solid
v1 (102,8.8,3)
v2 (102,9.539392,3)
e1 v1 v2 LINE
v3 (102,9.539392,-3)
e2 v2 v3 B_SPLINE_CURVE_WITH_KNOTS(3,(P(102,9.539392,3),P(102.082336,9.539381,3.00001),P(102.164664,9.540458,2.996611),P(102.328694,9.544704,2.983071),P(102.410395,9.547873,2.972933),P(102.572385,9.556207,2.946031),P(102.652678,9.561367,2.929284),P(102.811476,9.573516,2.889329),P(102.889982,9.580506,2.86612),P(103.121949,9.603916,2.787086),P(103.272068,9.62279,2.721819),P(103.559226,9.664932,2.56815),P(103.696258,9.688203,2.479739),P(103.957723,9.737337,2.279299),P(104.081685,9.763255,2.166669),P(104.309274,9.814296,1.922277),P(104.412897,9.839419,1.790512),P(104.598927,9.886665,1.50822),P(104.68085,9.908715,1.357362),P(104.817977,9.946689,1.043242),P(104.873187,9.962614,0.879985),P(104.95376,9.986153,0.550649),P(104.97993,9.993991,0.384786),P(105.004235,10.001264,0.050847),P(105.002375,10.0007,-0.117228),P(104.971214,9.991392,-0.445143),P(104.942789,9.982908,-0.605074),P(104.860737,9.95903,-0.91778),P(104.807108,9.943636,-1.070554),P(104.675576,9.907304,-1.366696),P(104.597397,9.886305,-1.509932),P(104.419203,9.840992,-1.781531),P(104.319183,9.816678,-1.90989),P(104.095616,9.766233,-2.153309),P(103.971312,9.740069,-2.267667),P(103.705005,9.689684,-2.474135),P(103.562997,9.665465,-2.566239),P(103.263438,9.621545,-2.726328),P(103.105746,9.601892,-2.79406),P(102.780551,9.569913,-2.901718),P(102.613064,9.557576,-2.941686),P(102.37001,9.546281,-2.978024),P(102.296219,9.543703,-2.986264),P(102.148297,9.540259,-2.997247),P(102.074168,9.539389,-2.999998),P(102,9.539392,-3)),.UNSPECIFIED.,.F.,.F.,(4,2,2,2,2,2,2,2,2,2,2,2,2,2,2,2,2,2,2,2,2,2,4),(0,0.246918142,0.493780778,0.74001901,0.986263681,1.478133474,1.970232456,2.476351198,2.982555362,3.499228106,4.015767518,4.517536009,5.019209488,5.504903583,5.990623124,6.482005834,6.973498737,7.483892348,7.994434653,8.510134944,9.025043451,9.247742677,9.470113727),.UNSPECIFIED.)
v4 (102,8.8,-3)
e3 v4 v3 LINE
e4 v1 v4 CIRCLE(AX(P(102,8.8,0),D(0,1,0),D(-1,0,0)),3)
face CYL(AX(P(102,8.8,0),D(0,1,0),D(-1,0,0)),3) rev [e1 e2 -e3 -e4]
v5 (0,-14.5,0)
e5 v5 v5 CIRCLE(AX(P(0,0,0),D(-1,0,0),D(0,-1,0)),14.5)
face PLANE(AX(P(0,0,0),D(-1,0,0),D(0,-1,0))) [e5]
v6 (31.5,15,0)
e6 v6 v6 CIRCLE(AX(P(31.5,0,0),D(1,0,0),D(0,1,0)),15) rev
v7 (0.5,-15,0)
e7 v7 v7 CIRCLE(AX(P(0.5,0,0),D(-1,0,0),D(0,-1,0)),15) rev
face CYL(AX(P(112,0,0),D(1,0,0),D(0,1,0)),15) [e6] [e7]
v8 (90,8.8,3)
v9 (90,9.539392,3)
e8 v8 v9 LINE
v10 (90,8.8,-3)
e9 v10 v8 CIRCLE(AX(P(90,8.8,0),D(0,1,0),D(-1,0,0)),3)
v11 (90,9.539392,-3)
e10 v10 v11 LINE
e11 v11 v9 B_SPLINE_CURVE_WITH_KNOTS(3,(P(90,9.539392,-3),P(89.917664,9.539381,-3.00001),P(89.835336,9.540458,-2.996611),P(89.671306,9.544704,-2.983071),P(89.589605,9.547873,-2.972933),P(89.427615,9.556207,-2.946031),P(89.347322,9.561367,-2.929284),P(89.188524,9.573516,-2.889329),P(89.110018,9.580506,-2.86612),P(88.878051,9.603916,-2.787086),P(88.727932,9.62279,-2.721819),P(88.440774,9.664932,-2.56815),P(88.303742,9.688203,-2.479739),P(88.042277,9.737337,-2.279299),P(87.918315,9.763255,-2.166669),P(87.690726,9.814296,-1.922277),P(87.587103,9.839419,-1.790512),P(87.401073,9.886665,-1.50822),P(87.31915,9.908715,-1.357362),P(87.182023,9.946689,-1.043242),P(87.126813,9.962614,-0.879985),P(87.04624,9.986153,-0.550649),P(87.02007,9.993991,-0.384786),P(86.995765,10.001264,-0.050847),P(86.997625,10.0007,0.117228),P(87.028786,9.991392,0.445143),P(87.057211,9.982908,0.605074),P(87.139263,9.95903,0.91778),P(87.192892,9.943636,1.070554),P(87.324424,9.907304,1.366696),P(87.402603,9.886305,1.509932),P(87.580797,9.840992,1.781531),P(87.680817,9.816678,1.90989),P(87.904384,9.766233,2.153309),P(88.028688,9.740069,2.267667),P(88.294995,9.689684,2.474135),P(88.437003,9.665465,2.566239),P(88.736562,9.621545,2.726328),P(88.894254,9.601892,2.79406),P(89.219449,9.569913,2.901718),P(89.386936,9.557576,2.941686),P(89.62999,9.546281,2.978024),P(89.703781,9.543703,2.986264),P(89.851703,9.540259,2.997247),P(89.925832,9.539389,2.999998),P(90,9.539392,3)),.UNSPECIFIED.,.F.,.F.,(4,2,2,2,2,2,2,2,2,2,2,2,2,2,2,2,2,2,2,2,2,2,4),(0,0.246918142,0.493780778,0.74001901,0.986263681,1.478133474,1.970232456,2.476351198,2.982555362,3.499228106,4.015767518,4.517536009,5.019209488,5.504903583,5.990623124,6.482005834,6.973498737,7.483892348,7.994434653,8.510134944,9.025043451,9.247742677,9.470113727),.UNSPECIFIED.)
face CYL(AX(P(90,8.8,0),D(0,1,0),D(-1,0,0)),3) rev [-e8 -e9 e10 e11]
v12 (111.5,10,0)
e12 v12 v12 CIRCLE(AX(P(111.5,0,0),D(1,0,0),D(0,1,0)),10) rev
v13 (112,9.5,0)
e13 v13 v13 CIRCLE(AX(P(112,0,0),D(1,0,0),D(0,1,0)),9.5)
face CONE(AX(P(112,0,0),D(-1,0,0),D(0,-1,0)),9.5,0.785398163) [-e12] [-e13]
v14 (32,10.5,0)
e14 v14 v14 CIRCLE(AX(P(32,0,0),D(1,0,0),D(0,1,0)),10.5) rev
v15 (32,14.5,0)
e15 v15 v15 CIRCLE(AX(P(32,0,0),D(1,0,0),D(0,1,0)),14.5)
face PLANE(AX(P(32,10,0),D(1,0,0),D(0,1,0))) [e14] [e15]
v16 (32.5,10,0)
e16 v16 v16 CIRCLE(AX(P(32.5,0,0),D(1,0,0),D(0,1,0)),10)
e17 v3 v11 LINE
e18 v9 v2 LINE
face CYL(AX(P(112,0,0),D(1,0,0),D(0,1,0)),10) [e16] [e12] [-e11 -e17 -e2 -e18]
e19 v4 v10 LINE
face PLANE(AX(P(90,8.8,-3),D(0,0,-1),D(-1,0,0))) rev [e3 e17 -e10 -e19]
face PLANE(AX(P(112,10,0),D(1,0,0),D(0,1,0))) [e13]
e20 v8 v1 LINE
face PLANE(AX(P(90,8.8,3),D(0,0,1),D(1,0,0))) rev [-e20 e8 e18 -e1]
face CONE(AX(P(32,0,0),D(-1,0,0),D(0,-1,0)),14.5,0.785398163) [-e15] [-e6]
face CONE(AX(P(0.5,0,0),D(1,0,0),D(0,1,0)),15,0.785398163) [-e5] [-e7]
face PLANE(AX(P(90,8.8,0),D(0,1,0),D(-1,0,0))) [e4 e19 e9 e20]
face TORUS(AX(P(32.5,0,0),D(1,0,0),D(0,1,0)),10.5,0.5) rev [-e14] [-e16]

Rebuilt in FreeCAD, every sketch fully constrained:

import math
import FreeCAD as App
import Part
import Sketcher
from FreeCAD import Vector


def edges_at(feature, points):
    """Names of the edges that pass closest to the given points."""
    edges = feature.Shape.Edges
    near = lambda p: min(range(len(edges)), key=lambda i: edges[i].distToShape(Part.Vertex(*p))[0])
    return sorted({f"Edge{near(p) + 1}" for p in points})

doc = App.newDocument("Part")
body = doc.addObject("PartDesign::Body", "Body")

# Sketch on XY plane
sketch1 = body.newObject("Sketcher::SketchObject", "Sketch")
sketch1.AttachmentSupport = (doc.getObject("XY_Plane"), [""])
sketch1.MapMode = "FlatFace"
sketch1.addGeometry(Part.LineSegment(Vector(0, 15, 0), Vector(0, 0, 0)), False)
sketch1.addGeometry(Part.LineSegment(Vector(0, 0, 0), Vector(112, 0, 0)), False)
sketch1.addGeometry(Part.LineSegment(Vector(112, 0, 0), Vector(112, 10, 0)), False)
sketch1.addGeometry(Part.LineSegment(Vector(112, 10, 0), Vector(32, 10, 0)), False)
sketch1.addGeometry(Part.LineSegment(Vector(32, 10, 0), Vector(32, 15, 0)), False)
sketch1.addGeometry(Part.LineSegment(Vector(32, 15, 0), Vector(0, 15, 0)), False)
sketch1.addConstraint(Sketcher.Constraint("Coincident", 0, 2, 1, 1))
sketch1.addConstraint(Sketcher.Constraint("Coincident", 1, 2, 2, 1))
sketch1.addConstraint(Sketcher.Constraint("Coincident", 2, 2, 3, 1))
sketch1.addConstraint(Sketcher.Constraint("Coincident", 3, 2, 4, 1))
sketch1.addConstraint(Sketcher.Constraint("Coincident", 4, 2, 5, 1))
sketch1.addConstraint(Sketcher.Constraint("Coincident", 5, 2, 0, 1))
sketch1.addConstraint(Sketcher.Constraint("Vertical", 0))
sketch1.addConstraint(Sketcher.Constraint("Horizontal", 1))
sketch1.addConstraint(Sketcher.Constraint("Vertical", 2))
sketch1.addConstraint(Sketcher.Constraint("Horizontal", 3))
sketch1.addConstraint(Sketcher.Constraint("Vertical", 4))
sketch1.addConstraint(Sketcher.Constraint("Horizontal", 5))
sketch1.addConstraint(Sketcher.Constraint("Coincident", 0, 2, -1, 1))
sketch1.addConstraint(Sketcher.Constraint("DistanceX", 1, 1, 1, 2, 112.0))
sketch1.addConstraint(Sketcher.Constraint("DistanceX", 3, 2, 3, 1, 80.0))
sketch1.addConstraint(Sketcher.Constraint("DistanceY", 0, 2, 0, 1, 15.0))
sketch1.addConstraint(Sketcher.Constraint("DistanceY", 2, 1, 2, 2, 10.0))
revolution = body.newObject("PartDesign::Revolution", "Revolution")
revolution.Profile = sketch1
revolution.ReferenceAxis = (sketch1, ["H_Axis"])
revolution.Angle = 360
doc.recompute()

chamfer = body.newObject("PartDesign::Chamfer", "Chamfer")
chamfer.Base = (revolution, edges_at(revolution, [(112, -10, 0), (32, -15, 0), (0, -15, 0)]))
chamfer.Size = 0.5
doc.recompute()

fillet = body.newObject("PartDesign::Fillet", "Fillet")
fillet.Base = (chamfer, edges_at(chamfer, [(32, -10, 0)]))
fillet.Radius = 0.5

# Sketch on XZ plane
sketch2 = body.newObject("Sketcher::SketchObject", "Sketch001")
sketch2.AttachmentSupport = (doc.getObject("XZ_Plane"), [""])
sketch2.MapMode = "FlatFace"
sketch2.AttachmentOffset = App.Placement(Vector(0, 0, -10), App.Rotation())
sketch2.addGeometry(Part.LineSegment(Vector(102, -3, 0), Vector(90, -3, 0)), False)
sketch2.addGeometry(Part.ArcOfCircle(Part.Circle(Vector(90, 0, 0), Vector(0, 0, 1), 3), math.radians(90), math.radians(270)), False)
sketch2.addGeometry(Part.LineSegment(Vector(90, 3, 0), Vector(102, 3, 0)), False)
sketch2.addGeometry(Part.ArcOfCircle(Part.Circle(Vector(102, 0, 0), Vector(0, 0, 1), 3), math.radians(-90), math.radians(90)), False)
sketch2.addConstraint(Sketcher.Constraint("Tangent", 0, 2, 1, 2))
sketch2.addConstraint(Sketcher.Constraint("Tangent", 1, 1, 2, 1))
sketch2.addConstraint(Sketcher.Constraint("Tangent", 2, 2, 3, 2))
sketch2.addConstraint(Sketcher.Constraint("Tangent", 3, 1, 0, 1))
sketch2.addConstraint(Sketcher.Constraint("Horizontal", 0))
sketch2.addConstraint(Sketcher.Constraint("Horizontal", 2))
sketch2.addConstraint(Sketcher.Constraint("PointOnObject", 1, 3, -1))
sketch2.addConstraint(Sketcher.Constraint("Radius", 1, 3.0))
sketch2.addConstraint(Sketcher.Constraint("DistanceX", 0, 2, 0, 1, 12.0))
sketch2.addConstraint(Sketcher.Constraint("DistanceX", -1, 1, 1, 3, 90.0))
pocket1 = body.newObject("PartDesign::Pocket", "Pocket")
pocket1.Profile = sketch2
pocket1.Length = 1.2
pocket1.Reversed = True

doc.recompute()
